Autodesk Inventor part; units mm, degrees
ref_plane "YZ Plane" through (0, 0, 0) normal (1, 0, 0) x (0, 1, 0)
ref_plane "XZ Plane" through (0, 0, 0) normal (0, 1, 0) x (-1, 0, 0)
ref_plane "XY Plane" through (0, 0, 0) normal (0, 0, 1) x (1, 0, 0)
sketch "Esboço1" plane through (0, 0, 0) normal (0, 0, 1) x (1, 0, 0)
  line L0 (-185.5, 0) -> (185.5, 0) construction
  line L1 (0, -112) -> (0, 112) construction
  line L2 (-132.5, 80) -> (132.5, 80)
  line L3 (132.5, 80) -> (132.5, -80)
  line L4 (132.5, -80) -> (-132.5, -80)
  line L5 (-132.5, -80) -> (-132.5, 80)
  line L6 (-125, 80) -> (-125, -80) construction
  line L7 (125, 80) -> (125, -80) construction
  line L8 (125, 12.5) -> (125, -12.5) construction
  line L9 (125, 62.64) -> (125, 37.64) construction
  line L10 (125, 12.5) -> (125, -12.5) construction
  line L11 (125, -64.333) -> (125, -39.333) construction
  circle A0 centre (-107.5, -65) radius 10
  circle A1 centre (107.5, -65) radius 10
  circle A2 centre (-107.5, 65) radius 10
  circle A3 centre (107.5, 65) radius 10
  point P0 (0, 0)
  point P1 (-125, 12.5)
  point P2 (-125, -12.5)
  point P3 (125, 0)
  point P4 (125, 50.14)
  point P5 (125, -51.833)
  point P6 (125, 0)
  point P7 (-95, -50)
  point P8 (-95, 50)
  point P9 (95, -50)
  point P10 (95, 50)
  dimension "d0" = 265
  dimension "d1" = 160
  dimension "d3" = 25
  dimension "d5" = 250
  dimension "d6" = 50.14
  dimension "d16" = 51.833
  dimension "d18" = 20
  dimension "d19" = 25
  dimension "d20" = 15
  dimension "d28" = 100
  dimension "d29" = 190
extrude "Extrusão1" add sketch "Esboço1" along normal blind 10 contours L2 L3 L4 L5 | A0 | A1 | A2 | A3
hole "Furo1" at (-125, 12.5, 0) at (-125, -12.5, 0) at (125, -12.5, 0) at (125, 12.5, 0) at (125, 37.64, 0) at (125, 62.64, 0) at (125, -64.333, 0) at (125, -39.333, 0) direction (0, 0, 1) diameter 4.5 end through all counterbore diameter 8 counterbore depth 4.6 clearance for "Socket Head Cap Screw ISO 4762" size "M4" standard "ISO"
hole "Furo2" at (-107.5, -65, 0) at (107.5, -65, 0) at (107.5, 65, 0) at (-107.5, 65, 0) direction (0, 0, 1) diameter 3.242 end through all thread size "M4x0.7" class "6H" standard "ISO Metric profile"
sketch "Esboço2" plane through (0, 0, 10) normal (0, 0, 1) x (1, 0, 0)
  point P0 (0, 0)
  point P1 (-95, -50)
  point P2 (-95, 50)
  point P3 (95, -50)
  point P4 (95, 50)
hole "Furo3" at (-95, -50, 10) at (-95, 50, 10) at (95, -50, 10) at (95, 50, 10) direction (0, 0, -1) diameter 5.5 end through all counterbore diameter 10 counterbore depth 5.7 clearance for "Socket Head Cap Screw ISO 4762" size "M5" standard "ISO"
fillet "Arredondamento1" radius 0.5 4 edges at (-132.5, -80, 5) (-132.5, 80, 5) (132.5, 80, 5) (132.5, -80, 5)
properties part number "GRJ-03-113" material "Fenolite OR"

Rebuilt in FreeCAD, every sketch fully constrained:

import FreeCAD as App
import Part
import Sketcher

V = App.Vector


def edges_at(feature, points):
    """Names of the edges that pass closest to the given points."""
    edges = feature.Shape.Edges
    near = lambda p: min(range(len(edges)), key=lambda i: edges[i].distToShape(Part.Vertex(*p))[0])
    return sorted({f"Edge{near(p) + 1}" for p in points})

doc = App.newDocument("Part")
body = doc.addObject("PartDesign::Body", "Body")

# Sketch on XY plane
sketch1 = body.newObject("Sketcher::SketchObject", "Sketch")
sketch1.AttachmentSupport = (doc.getObject("XY_Plane"), [""])
sketch1.MapMode = "FlatFace"
sketch1.addGeometry([
    Part.LineSegment(V(132.5, 80, 0), V(-132.5, 80, 0)),
    Part.LineSegment(V(-132.5, 80, 0), V(-132.5, -80, 0)),
    Part.LineSegment(V(-132.5, -80, 0), V(132.5, -80, 0)),
    Part.LineSegment(V(132.5, -80, 0), V(132.5, 80, 0)),
], False)
sketch1.addConstraint([
    Sketcher.Constraint("Coincident", 0, 2, 1, 1),
    Sketcher.Constraint("Coincident", 1, 2, 2, 1),
    Sketcher.Constraint("Coincident", 2, 2, 3, 1),
    Sketcher.Constraint("Coincident", 3, 2, 0, 1),
    Sketcher.Constraint("Horizontal", 0),
    Sketcher.Constraint("Vertical", 1),
    Sketcher.Constraint("Horizontal", 2),
    Sketcher.Constraint("Vertical", 3),
    Sketcher.Constraint("Symmetric", 0, 2, 2, 2, -1, 1),
    Sketcher.Constraint("DistanceX", 0, 2, 0, 1, 265.0),
    Sketcher.Constraint("DistanceY", 1, 2, 1, 1, 160.0),
])
pad1 = body.newObject("PartDesign::Pad", "Pad")
pad1.Profile = sketch1
pad1.Length = 10

# Sketch on XY plane
sketch2 = body.newObject("Sketcher::SketchObject", "Sketch001")
sketch2.AttachmentSupport = (doc.getObject("XY_Plane"), [""])
sketch2.MapMode = "FlatFace"
sketch2.addGeometry([
    Part.Circle(V(-125, 12.5, 0), V(0, 0, 1), 2.25),  # 0
    Part.Circle(V(-125, -12.5, 0), V(0, 0, 1), 2.25),  # 1
    Part.Circle(V(125, -12.5, 0), V(0, 0, 1), 2.25),  # 2
    Part.Circle(V(125, 12.5, 0), V(0, 0, 1), 2.25),  # 3
    Part.Circle(V(125, 37.64, 0), V(0, 0, 1), 2.25),  # 4
    Part.Circle(V(125, 62.64, 0), V(0, 0, 1), 2.25),  # 5
    Part.Circle(V(125, -64.333, 0), V(0, 0, 1), 2.25),  # 6
    Part.Circle(V(125, -39.333, 0), V(0, 0, 1), 2.25),  # 7
], False)
sketch2.addConstraint([
    Sketcher.Constraint("Equal", 0, 1),
    Sketcher.Constraint("Equal", 1, 2),
    Sketcher.Constraint("Equal", 2, 3),
    Sketcher.Constraint("Equal", 3, 4),
    Sketcher.Constraint("Equal", 4, 5),
    Sketcher.Constraint("Equal", 5, 6),
    Sketcher.Constraint("Equal", 6, 7),
    Sketcher.Constraint("Symmetric", 0, 3, 2, 3, -1, 1),
    Sketcher.Constraint("Symmetric", 1, 3, 3, 3, -1, 1),
    Sketcher.Constraint("Symmetric", 1, 3, 2, 3, -2),
    Sketcher.Constraint("Vertical", 3, 3, 4, 3),
    Sketcher.Constraint("Vertical", 4, 3, 5, 3),
    Sketcher.Constraint("Vertical", 5, 3, 6, 3),
    Sketcher.Constraint("Vertical", 6, 3, 7, 3),
    Sketcher.Constraint("Diameter", 0, 4.5),
    Sketcher.Constraint("DistanceX", 0, 3, -1, 1, 125.0),
    Sketcher.Constraint("DistanceY", 1, 3, 0, 3, 25.0),
    Sketcher.Constraint("DistanceY", 4, 3, 5, 3, 25.0),
    Sketcher.Constraint("DistanceY", 6, 3, 7, 3, 25.0),
    Sketcher.Constraint("DistanceY", -1, 1, 4, 3, 37.64),
    Sketcher.Constraint("DistanceY", 6, 3, -1, 1, 64.333),
])
doc.recompute()
hole = body.newObject("PartDesign::Hole", "Hole")
hole.Profile = sketch2
hole.ThreadType = "None"
hole.Diameter = 4.5
hole.DepthType = "ThroughAll"
hole.HoleCutType = "Counterbore"
hole.HoleCutDiameter = 8
hole.HoleCutDepth = 4.6
hole.Reversed = True

# Sketch on XY plane
sketch3 = body.newObject("Sketcher::SketchObject", "Sketch002")
sketch3.AttachmentSupport = (doc.getObject("XY_Plane"), [""])
sketch3.MapMode = "FlatFace"
sketch3.addGeometry([
    Part.Circle(V(-107.5, -65, 0), V(0, 0, 1), 1.621),
    Part.Circle(V(107.5, -65, 0), V(0, 0, 1), 1.621),
    Part.Circle(V(107.5, 65, 0), V(0, 0, 1), 1.621),
    Part.Circle(V(-107.5, 65, 0), V(0, 0, 1), 1.621),
], False)
sketch3.addConstraint([
    Sketcher.Constraint("Equal", 0, 1),
    Sketcher.Constraint("Equal", 1, 2),
    Sketcher.Constraint("Equal", 2, 3),
    Sketcher.Constraint("Symmetric", 0, 3, 2, 3, -1, 1),
    Sketcher.Constraint("Symmetric", 1, 3, 3, 3, -1, 1),
    Sketcher.Constraint("Symmetric", 0, 3, 1, 3, -2),
    Sketcher.Constraint("Diameter", 0, 3.242),
    Sketcher.Constraint("DistanceY", 0, 3, -1, 1, 65.0),
    Sketcher.Constraint("DistanceX", 0, 3, 1, 3, 215.0),
])
doc.recompute()
hole2 = body.newObject("PartDesign::Hole", "Hole001")
hole2.Profile = sketch3
hole2.ThreadType = "None"
hole2.Diameter = 3.242
hole2.DepthType = "ThroughAll"
hole2.Reversed = True

# Sketch on XY plane
sketch4 = body.newObject("Sketcher::SketchObject", "Sketch003")
sketch4.AttachmentSupport = (doc.getObject("XY_Plane"), [""])
sketch4.MapMode = "FlatFace"
sketch4.AttachmentOffset = App.Placement(V(0, 0, 10), App.Rotation())
sketch4.addGeometry([
    Part.Circle(V(-95, -50, 0), V(0, 0, 1), 2.75),
    Part.Circle(V(-95, 50, 0), V(0, 0, 1), 2.75),
    Part.Circle(V(95, -50, 0), V(0, 0, 1), 2.75),
    Part.Circle(V(95, 50, 0), V(0, 0, 1), 2.75),
], False)
sketch4.addConstraint([
    Sketcher.Constraint("Equal", 0, 1),
    Sketcher.Constraint("Equal", 1, 2),
    Sketcher.Constraint("Equal", 2, 3),
    Sketcher.Constraint("Symmetric", 1, 3, 2, 3, -1, 1),
    Sketcher.Constraint("Symmetric", 0, 3, 3, 3, -1, 1),
    Sketcher.Constraint("Symmetric", 0, 3, 2, 3, -2),
    Sketcher.Constraint("Diameter", 0, 5.5),
    Sketcher.Constraint("DistanceX", 0, 3, -1, 1, 95.0),
    Sketcher.Constraint("DistanceY", 0, 3, -1, 1, 50.0),
])
doc.recompute()
hole3 = body.newObject("PartDesign::Hole", "Hole002")
hole3.Profile = sketch4
hole3.ThreadType = "None"
hole3.Diameter = 5.5
hole3.DepthType = "ThroughAll"
hole3.HoleCutType = "Counterbore"
hole3.HoleCutDiameter = 10
hole3.HoleCutDepth = 5.7
doc.recompute()

fillet = body.newObject("PartDesign::Fillet", "Fillet")
fillet.Base = (hole3, edges_at(hole3, [
    (-132.5, -80, 5),
    (-132.5, 80, 5),
    (132.5, 80, 5),
    (132.5, -80, 5),
]))
fillet.Radius = 0.5

doc.recompute()
